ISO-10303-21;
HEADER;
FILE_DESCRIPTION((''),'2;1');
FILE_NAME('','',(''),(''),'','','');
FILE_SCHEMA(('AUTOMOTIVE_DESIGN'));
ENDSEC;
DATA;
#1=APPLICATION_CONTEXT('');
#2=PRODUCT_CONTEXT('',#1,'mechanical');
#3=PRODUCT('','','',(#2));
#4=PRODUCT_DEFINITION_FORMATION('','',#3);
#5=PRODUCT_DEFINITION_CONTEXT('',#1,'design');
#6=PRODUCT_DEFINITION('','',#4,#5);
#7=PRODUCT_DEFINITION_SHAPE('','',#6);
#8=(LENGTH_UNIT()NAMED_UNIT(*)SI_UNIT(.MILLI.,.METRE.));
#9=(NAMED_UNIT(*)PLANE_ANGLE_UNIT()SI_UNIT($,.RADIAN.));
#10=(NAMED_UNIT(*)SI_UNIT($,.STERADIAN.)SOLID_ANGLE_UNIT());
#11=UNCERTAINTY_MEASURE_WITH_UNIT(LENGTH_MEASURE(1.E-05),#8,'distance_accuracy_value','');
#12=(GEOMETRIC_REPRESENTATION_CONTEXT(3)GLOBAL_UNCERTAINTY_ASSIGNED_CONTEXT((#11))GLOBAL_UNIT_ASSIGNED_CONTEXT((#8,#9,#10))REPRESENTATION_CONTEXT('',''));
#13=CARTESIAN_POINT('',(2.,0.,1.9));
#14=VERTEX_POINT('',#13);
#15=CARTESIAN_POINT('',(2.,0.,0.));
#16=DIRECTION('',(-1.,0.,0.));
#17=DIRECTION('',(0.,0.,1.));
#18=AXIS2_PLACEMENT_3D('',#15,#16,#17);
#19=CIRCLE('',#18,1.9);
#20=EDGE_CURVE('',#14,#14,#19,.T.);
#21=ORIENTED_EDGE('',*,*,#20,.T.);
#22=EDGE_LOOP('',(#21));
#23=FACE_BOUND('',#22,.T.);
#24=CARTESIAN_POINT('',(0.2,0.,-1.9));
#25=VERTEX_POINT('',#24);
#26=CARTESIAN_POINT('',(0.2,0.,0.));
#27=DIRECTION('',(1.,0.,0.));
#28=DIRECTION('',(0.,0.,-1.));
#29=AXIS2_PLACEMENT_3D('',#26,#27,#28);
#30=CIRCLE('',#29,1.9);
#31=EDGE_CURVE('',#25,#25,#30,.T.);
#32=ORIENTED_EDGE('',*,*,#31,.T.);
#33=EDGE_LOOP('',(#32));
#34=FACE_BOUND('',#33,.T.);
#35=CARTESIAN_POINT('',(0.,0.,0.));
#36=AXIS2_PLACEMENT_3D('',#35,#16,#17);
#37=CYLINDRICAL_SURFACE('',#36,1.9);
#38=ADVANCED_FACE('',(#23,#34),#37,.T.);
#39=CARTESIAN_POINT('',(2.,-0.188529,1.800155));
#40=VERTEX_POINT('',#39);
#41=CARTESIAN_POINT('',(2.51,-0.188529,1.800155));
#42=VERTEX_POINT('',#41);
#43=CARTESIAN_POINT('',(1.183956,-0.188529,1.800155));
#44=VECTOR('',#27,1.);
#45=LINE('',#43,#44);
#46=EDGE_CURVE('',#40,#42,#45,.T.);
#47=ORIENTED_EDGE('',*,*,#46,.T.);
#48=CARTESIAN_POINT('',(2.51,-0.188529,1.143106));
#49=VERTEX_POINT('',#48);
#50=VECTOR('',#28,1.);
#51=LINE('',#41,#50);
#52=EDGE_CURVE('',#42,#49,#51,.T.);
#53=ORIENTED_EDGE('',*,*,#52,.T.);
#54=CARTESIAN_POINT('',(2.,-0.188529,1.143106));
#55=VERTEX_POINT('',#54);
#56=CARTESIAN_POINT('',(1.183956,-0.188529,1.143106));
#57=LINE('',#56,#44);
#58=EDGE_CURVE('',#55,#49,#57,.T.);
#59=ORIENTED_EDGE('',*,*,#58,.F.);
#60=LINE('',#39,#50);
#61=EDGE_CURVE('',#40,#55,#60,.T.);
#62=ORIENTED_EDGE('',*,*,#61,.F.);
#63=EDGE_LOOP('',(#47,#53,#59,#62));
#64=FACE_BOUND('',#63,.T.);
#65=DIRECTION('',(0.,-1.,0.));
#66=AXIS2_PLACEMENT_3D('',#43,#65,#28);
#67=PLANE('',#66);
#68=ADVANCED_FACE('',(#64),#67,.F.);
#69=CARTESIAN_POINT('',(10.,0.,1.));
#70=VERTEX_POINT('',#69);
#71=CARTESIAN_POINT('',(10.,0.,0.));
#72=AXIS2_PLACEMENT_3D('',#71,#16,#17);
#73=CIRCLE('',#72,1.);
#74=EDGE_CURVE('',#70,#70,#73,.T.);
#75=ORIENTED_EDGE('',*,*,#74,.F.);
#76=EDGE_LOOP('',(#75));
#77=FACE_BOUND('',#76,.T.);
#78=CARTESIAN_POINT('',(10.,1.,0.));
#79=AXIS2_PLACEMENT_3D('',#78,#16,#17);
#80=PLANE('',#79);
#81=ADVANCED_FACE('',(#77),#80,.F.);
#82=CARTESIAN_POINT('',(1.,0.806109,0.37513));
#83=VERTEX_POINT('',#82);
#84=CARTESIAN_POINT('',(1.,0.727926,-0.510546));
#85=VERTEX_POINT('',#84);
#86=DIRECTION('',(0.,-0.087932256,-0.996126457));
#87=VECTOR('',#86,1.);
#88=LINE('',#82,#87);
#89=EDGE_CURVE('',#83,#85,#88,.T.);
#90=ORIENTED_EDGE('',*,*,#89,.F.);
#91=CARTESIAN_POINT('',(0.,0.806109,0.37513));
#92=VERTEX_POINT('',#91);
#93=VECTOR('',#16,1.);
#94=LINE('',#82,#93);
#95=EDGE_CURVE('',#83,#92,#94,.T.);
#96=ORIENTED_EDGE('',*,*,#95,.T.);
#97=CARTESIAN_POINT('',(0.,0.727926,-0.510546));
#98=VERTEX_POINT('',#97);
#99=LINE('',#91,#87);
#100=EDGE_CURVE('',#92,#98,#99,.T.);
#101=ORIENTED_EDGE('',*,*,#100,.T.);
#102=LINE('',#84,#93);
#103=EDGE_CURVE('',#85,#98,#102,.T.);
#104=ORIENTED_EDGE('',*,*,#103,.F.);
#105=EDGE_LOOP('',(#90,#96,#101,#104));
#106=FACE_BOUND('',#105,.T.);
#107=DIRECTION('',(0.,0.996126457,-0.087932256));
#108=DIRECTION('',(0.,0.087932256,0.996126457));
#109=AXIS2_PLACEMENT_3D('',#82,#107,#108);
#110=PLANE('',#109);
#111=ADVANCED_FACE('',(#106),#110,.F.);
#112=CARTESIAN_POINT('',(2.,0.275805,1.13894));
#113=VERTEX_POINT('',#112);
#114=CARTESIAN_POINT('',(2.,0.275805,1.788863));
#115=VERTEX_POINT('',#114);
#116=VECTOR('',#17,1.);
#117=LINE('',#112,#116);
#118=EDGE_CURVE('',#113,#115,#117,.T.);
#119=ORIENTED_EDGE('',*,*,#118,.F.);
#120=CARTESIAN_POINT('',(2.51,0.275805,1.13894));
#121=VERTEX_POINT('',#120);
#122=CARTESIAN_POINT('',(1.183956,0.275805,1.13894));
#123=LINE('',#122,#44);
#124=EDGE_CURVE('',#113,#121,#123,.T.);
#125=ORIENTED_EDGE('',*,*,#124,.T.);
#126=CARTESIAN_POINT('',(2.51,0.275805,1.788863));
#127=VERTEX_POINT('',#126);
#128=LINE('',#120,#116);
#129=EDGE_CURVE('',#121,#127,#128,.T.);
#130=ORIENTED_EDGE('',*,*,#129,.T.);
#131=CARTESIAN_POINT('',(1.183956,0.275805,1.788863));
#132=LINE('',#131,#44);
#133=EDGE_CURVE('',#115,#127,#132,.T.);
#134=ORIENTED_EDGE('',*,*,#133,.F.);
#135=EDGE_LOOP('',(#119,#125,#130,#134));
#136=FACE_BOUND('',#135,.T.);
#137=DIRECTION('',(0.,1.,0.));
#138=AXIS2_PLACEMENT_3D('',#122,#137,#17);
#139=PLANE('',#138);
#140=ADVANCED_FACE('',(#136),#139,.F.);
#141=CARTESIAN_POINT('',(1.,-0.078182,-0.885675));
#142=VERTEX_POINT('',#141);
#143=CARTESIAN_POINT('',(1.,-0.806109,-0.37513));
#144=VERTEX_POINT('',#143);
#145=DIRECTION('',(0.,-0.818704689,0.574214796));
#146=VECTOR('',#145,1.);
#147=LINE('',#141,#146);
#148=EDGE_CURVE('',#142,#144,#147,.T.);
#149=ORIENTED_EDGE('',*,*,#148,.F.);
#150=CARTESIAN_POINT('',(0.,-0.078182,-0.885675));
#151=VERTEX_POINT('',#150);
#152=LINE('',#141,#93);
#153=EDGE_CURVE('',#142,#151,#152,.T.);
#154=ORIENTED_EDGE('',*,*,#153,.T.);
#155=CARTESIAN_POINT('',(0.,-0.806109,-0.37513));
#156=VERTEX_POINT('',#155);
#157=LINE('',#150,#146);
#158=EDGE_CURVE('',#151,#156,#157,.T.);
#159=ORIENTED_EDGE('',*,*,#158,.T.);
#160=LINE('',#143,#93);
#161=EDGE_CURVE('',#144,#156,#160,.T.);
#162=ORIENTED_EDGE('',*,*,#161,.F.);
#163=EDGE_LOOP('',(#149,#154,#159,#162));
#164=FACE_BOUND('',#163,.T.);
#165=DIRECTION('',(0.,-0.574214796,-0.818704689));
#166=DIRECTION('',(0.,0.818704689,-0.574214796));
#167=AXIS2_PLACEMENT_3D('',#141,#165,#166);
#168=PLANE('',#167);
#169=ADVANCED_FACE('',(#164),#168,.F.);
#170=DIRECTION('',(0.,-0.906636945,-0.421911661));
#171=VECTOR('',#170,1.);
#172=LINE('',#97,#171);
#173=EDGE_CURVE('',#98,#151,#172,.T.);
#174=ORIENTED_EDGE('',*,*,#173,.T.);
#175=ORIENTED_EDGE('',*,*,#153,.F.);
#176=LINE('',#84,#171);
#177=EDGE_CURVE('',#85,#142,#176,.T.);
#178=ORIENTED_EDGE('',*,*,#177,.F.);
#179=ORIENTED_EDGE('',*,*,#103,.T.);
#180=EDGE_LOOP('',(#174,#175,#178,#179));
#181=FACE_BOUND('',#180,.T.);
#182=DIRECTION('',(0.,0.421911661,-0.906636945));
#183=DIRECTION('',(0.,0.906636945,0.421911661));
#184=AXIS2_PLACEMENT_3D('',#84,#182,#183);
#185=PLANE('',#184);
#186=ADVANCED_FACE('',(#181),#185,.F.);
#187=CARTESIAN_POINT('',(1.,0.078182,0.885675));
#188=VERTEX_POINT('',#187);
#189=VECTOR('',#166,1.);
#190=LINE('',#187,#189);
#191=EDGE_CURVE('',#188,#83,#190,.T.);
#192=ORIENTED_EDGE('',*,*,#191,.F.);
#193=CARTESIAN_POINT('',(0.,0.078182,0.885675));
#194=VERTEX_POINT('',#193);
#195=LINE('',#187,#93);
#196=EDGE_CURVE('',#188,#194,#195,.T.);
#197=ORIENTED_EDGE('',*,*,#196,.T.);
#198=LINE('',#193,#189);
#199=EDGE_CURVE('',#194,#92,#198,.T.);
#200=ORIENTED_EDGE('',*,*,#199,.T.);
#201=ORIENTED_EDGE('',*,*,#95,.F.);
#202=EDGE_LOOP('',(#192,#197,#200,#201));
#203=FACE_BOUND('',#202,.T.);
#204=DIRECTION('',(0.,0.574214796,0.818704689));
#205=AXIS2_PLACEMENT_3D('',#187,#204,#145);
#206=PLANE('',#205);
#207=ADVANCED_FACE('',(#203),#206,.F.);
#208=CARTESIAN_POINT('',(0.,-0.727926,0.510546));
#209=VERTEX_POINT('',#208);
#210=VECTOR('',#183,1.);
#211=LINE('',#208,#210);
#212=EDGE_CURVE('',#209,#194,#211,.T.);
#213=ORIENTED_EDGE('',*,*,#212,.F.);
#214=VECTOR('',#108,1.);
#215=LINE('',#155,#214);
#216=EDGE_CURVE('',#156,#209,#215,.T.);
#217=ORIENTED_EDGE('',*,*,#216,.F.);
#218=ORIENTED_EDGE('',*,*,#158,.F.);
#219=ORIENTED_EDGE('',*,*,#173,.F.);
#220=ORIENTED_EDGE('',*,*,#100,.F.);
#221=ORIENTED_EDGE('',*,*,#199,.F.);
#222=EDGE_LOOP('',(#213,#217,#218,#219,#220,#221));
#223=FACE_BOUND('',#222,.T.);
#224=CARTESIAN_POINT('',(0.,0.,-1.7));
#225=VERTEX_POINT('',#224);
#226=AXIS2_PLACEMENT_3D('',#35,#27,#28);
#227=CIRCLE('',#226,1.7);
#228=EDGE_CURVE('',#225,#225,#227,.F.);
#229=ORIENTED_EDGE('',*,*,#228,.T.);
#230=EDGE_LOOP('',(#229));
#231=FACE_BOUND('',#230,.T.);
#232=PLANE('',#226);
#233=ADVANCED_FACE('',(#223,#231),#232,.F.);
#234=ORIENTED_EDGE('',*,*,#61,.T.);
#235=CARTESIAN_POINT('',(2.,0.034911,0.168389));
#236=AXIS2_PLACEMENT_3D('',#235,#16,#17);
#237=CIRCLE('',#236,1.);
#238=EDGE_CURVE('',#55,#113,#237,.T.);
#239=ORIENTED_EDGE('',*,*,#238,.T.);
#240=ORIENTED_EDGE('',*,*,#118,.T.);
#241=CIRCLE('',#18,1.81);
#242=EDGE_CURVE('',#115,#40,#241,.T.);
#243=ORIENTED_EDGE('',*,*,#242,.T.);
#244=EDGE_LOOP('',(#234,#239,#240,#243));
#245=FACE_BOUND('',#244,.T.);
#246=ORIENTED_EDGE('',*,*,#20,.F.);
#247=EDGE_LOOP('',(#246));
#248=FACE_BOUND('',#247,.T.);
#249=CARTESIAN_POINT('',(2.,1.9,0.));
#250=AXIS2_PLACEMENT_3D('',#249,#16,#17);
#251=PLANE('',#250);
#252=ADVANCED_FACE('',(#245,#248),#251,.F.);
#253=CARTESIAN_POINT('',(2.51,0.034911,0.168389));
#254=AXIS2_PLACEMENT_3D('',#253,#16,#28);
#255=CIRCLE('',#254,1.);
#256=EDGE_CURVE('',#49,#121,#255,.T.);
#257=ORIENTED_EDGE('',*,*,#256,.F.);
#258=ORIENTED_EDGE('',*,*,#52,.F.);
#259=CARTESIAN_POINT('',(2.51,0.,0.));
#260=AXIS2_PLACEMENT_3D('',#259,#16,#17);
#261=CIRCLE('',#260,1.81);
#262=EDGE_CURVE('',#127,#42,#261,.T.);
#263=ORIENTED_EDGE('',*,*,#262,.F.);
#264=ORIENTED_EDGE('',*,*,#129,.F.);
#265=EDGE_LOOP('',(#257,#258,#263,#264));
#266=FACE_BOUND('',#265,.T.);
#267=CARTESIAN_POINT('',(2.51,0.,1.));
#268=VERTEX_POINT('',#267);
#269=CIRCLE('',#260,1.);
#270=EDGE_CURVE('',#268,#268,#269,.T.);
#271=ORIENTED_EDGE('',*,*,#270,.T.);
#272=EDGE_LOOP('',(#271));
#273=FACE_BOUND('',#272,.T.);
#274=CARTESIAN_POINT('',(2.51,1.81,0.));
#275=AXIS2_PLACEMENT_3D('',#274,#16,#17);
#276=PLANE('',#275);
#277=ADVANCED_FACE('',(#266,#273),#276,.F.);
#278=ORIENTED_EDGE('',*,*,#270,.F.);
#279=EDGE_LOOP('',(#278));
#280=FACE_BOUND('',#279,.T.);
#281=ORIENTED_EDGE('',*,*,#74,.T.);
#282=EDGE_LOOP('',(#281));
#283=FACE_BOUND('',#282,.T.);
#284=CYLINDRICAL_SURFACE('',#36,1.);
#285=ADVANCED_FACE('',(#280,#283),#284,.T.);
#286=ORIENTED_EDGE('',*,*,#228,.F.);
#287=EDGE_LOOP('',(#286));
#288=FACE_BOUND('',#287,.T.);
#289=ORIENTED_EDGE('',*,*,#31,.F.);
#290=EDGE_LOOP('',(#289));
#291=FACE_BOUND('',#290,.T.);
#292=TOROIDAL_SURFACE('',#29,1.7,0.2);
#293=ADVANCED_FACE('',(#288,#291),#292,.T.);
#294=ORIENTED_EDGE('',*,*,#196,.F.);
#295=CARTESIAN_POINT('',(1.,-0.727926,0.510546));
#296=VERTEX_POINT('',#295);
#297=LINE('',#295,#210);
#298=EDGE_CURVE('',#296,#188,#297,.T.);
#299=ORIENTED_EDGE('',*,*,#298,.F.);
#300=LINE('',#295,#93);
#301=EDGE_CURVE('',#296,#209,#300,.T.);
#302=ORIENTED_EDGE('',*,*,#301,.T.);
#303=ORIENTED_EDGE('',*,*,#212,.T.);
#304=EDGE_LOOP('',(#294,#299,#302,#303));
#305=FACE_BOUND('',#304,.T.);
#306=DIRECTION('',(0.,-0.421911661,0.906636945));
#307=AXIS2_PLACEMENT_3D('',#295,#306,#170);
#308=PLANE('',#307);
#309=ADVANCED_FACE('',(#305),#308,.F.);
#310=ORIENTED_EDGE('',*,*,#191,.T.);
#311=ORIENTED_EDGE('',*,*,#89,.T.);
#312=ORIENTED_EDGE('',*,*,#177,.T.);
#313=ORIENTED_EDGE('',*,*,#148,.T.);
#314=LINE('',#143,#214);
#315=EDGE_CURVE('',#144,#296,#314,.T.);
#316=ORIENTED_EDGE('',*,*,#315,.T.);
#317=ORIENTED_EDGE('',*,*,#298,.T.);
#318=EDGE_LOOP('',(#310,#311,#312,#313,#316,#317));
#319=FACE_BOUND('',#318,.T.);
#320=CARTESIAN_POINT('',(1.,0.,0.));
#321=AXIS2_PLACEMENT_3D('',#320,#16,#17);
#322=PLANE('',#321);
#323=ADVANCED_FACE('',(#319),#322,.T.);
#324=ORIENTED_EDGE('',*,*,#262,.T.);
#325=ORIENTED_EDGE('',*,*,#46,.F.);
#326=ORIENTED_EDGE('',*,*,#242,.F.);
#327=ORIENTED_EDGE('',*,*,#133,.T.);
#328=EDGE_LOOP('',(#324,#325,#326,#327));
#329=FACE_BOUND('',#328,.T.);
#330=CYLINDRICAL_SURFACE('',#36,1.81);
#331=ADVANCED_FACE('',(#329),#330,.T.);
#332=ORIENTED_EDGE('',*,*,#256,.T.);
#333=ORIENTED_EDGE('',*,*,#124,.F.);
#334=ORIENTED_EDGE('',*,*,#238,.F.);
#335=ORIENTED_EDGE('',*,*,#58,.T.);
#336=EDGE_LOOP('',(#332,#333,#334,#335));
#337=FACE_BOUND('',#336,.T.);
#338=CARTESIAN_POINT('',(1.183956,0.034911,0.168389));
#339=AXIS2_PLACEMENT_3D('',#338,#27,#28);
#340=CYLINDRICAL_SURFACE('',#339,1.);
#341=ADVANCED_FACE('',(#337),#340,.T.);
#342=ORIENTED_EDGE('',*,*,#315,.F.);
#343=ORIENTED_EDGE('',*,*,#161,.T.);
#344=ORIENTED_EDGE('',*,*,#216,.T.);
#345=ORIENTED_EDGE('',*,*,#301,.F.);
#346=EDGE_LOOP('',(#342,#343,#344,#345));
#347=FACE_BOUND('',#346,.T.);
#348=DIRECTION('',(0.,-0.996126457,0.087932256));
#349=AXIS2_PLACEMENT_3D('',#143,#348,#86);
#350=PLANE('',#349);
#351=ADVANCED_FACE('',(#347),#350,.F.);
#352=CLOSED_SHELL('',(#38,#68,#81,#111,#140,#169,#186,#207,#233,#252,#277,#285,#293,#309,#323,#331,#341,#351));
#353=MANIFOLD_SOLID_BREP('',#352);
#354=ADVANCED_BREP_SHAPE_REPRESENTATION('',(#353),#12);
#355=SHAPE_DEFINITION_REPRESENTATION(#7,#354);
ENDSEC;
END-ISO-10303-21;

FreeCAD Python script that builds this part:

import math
import FreeCAD as App
import Part
import Sketcher

V = App.Vector
Q = App.Units.Quantity


def edges_at(feature, points):
    """Names of the edges that pass closest to the given points."""
    edges = feature.Shape.Edges
    near = lambda p: min(range(len(edges)), key=lambda i: edges[i].distToShape(Part.Vertex(*p))[0])
    return sorted({f"Edge{near(p) + 1}" for p in points})

doc = App.newDocument("Part")
body = doc.addObject("PartDesign::Body", "Body")

sketch1 = body.newObject("Sketcher::SketchObject", "Sketch")
sketch1.AttachmentSupport = (doc.getObject("XY_Plane"), [""])
sketch1.MapMode = "FlatFace"
sketch1.addGeometry(Part.LineSegment(V(0, 1.9, 0), V(0, 0, 0)), False)
sketch1.addGeometry(Part.LineSegment(V(0, 0, 0), V(10, 0, 0)), False)
sketch1.addGeometry(Part.LineSegment(V(10, 0, 0), V(10, 1, 0)), False)
sketch1.addGeometry(Part.LineSegment(V(10, 1, 0), V(2.51, 1, 0)), False)
sketch1.addGeometry(Part.LineSegment(V(2.51, 1, 0), V(2.51, 1.81, 0)), False)
sketch1.addGeometry(Part.LineSegment(V(2.51, 1.81, 0), V(2, 1.81, 0)), False)
sketch1.addGeometry(Part.LineSegment(V(2, 1.81, 0), V(2, 1.9, 0)), False)
sketch1.addGeometry(Part.LineSegment(V(2, 1.9, 0), V(0, 1.9, 0)), False)
sketch1.addConstraint(Sketcher.Constraint("Coincident", 0, 2, 1, 1))
sketch1.addConstraint(Sketcher.Constraint("Coincident", 1, 2, 2, 1))
sketch1.addConstraint(Sketcher.Constraint("Coincident", 2, 2, 3, 1))
sketch1.addConstraint(Sketcher.Constraint("Coincident", 3, 2, 4, 1))
sketch1.addConstraint(Sketcher.Constraint("Coincident", 4, 2, 5, 1))
sketch1.addConstraint(Sketcher.Constraint("Coincident", 5, 2, 6, 1))
sketch1.addConstraint(Sketcher.Constraint("Coincident", 6, 2, 7, 1))
sketch1.addConstraint(Sketcher.Constraint("Coincident", 7, 2, 0, 1))
sketch1.addConstraint(Sketcher.Constraint("Vertical", 0))
sketch1.addConstraint(Sketcher.Constraint("Horizontal", 1))
sketch1.addConstraint(Sketcher.Constraint("Vertical", 2))
sketch1.addConstraint(Sketcher.Constraint("Horizontal", 3))
sketch1.addConstraint(Sketcher.Constraint("Vertical", 4))
sketch1.addConstraint(Sketcher.Constraint("Horizontal", 5))
sketch1.addConstraint(Sketcher.Constraint("Vertical", 6))
sketch1.addConstraint(Sketcher.Constraint("Horizontal", 7))
sketch1.addConstraint(Sketcher.Constraint("Coincident", 0, 2, -1, 1))
sketch1.addConstraint(Sketcher.Constraint("DistanceX", 1, 1, 1, 2, Q("10 mm")))
sketch1.addConstraint(Sketcher.Constraint("DistanceX", 7, 2, 7, 1, Q("2 mm")))
sketch1.addConstraint(Sketcher.Constraint("DistanceY", 2, 1, 2, 2, Q("1 mm")))
sketch1.addConstraint(Sketcher.Constraint("DistanceY", 0, 2, 0, 1, Q("1.9 mm")))
sketch1.addConstraint(Sketcher.Constraint("DistanceX", 3, 2, 3, 1, Q("7.49 mm")))
sketch1.addConstraint(Sketcher.Constraint("DistanceY", 4, 1, 4, 2, Q("0.81 mm")))
revolution = body.newObject("PartDesign::Revolution", "Revolution")
revolution.Profile = sketch1
revolution.ReferenceAxis = (sketch1, ["H_Axis"])
revolution.Angle = 360

sketch2 = body.newObject("Sketcher::SketchObject", "Sketch001")
sketch2.AttachmentSupport = (doc.getObject("YZ_Plane"), [""])
sketch2.MapMode = "FlatFace"
sketch2.addGeometry(Part.LineSegment(V(-0.7, 0.5, 0), V(0.1, 0.9, 0)), False)
sketch2.addGeometry(Part.LineSegment(V(0.1, 0.9, 0), V(0.8, 0.4, 0)), False)
sketch2.addGeometry(Part.LineSegment(V(0.8, 0.4, 0), V(0.7, -0.5, 0)), False)
sketch2.addGeometry(Part.LineSegment(V(0.7, -0.5, 0), V(-0.1, -0.9, 0)), False)
sketch2.addGeometry(Part.LineSegment(V(-0.1, -0.9, 0), V(-0.8, -0.4, 0)), False)
sketch2.addGeometry(Part.LineSegment(V(-0.8, -0.4, 0), V(-0.7, 0.5, 0)), False)
sketch2.addConstraint(Sketcher.Constraint("Coincident", 0, 2, 1, 1))
sketch2.addConstraint(Sketcher.Constraint("Coincident", 1, 2, 2, 1))
sketch2.addConstraint(Sketcher.Constraint("Coincident", 2, 2, 3, 1))
sketch2.addConstraint(Sketcher.Constraint("Coincident", 3, 2, 4, 1))
sketch2.addConstraint(Sketcher.Constraint("Coincident", 4, 2, 5, 1))
sketch2.addConstraint(Sketcher.Constraint("Coincident", 5, 2, 0, 1))
sketch2.addConstraint(Sketcher.Constraint("Symmetric", 0, 2, 3, 2, -1, 1))
sketch2.addConstraint(Sketcher.Constraint("Symmetric", 1, 2, 4, 2, -1, 1))
sketch2.addConstraint(Sketcher.Constraint("Symmetric", 2, 2, 5, 2, -1, 1))
sketch2.addConstraint(Sketcher.Constraint("Equal", 0, 1))
sketch2.addConstraint(Sketcher.Constraint("Equal", 1, 2))
sketch2.addConstraint(Sketcher.Constraint("Distance", 0, Q("0.889119 mm")))
sketch2.addConstraint(Sketcher.Constraint("DistanceX", -1, 1, 1, 2, Q("0.806109 mm")))
sketch2.addConstraint(Sketcher.Constraint("DistanceY", -1, 1, 1, 2, Q("0.37513 mm")))
sketch2.addConstraint(Sketcher.Constraint("DistanceY", 2, 2, 0, 2, Q("1.396221 mm")))
pocket1 = body.newObject("PartDesign::Pocket", "Pocket")
pocket1.Profile = sketch2
pocket1.Length = 1
pocket1.Reversed = True
doc.recompute()

fillet = body.newObject("PartDesign::Fillet", "Fillet")
fillet.Base = (pocket1, edges_at(pocket1, [(0, -1.9, 0)]))
fillet.Radius = 0.2

sketch3 = body.newObject("Sketcher::SketchObject", "Sketch002")
sketch3.AttachmentSupport = (doc.getObject("YZ_Plane"), [""])
sketch3.MapMode = "FlatFace"
sketch3.AttachmentOffset = App.Placement(V(0, 0, 2.51), App.Rotation())
sketch3.addGeometry(Part.LineSegment(V(0.28, 1.14, 0), V(0.28, 1.79, 0)), False)
sketch3.addGeometry(Part.ArcOfCircle(Part.Circle(V(0, 0, 0), V(0, 0, 1), 1.81), math.radians(81.24), math.radians(95.98)), False)
sketch3.addGeometry(Part.LineSegment(V(-0.19, 1.8, 0), V(-0.19, 1.14, 0)), False)
sketch3.addGeometry(Part.ArcOfCircle(Part.Circle(V(0.03, 0.17, 0), V(0, 0, 1), 1), math.radians(76), math.radians(103)), False)
sketch3.addConstraint(Sketcher.Constraint("Coincident", 0, 2, 1, 1))
sketch3.addConstraint(Sketcher.Constraint("Coincident", 1, 2, 2, 1))
sketch3.addConstraint(Sketcher.Constraint("Coincident", 2, 2, 3, 2))
sketch3.addConstraint(Sketcher.Constraint("Coincident", 3, 1, 0, 1))
sketch3.addConstraint(Sketcher.Constraint("Vertical", 0))
sketch3.addConstraint(Sketcher.Constraint("Vertical", 2))
sketch3.addConstraint(Sketcher.Constraint("Coincident", 1, 3, -1, 1))
sketch3.addConstraint(Sketcher.Constraint("Radius", 3, Q("1 mm")))
sketch3.addConstraint(Sketcher.Constraint("Radius", 1, Q("1.81 mm")))
sketch3.addConstraint(Sketcher.Constraint("DistanceY", 2, 2, 2, 1, Q("0.657048 mm")))
sketch3.addConstraint(Sketcher.Constraint("DistanceY", 0, 1, 0, 2, Q("0.649923 mm")))
sketch3.addConstraint(Sketcher.Constraint("DistanceX", -1, 1, 3, 3, Q("0.034911 mm")))
sketch3.addConstraint(Sketcher.Constraint("DistanceY", -1, 1, 3, 3, Q("0.168389 mm")))
pocket2 = body.newObject("PartDesign::Pocket", "Pocket001")
pocket2.Profile = sketch3
pocket2.Length = 0.51

doc.recompute()
